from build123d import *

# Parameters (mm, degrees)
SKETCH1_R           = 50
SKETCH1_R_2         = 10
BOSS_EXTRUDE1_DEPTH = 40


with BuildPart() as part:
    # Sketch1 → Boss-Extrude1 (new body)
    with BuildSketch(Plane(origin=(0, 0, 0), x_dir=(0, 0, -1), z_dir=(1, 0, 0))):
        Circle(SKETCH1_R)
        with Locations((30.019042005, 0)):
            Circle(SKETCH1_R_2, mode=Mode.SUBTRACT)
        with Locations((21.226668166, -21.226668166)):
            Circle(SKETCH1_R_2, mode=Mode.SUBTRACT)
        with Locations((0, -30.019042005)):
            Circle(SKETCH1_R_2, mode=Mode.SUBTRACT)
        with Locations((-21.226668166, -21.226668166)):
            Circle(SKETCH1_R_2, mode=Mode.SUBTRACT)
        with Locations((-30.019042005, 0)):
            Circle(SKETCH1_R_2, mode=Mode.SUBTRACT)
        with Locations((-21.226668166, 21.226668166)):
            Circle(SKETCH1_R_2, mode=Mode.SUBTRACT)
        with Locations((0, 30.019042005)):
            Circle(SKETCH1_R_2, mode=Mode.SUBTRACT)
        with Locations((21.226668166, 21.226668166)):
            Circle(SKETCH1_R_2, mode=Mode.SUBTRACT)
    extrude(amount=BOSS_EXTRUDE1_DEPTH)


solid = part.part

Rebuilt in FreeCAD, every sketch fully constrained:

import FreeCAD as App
import Part
import Sketcher
Q = App.Units.Quantity

doc = App.newDocument("Part")
body = doc.addObject("PartDesign::Body", "Body")

# Sketch on YZ plane
sketch1 = body.newObject("Sketcher::SketchObject", "Sketch")
sketch1.AttachmentSupport = (doc.getObject("YZ_Plane"), [""])
sketch1.MapMode = "FlatFace"
sketch1.addGeometry(Part.Circle(App.Vector(0, 0, 0), App.Vector(0, 0, 1), 50), False)
sketch1.addGeometry(Part.Circle(App.Vector(-21.226668, 21.226668, 0), App.Vector(0, 0, 1), 10), False)
sketch1.addGeometry(Part.Circle(App.Vector(-30.019042, 0, 0), App.Vector(0, 0, 1), 10), False)
sketch1.addGeometry(Part.Circle(App.Vector(-21.226668, -21.226668, 0), App.Vector(0, 0, 1), 10), False)
sketch1.addGeometry(Part.Circle(App.Vector(0, 30.019042, 0), App.Vector(0, 0, 1), 10), False)
sketch1.addGeometry(Part.Circle(App.Vector(21.226668, 21.226668, 0), App.Vector(0, 0, 1), 10), False)
sketch1.addGeometry(Part.Circle(App.Vector(0, -30.019042, 0), App.Vector(0, 0, 1), 10), False)
sketch1.addGeometry(Part.Circle(App.Vector(30.019042, 0, 0), App.Vector(0, 0, 1), 10), False)
sketch1.addGeometry(Part.Circle(App.Vector(21.226668, -21.226668, 0), App.Vector(0, 0, 1), 10), False)
sketch1.addConstraint(Sketcher.Constraint("Coincident", 0, 3, -1, 1))
sketch1.addConstraint(Sketcher.Constraint("Equal", 1, 2))
sketch1.addConstraint(Sketcher.Constraint("Equal", 2, 3))
sketch1.addConstraint(Sketcher.Constraint("Equal", 3, 4))
sketch1.addConstraint(Sketcher.Constraint("Equal", 4, 5))
sketch1.addConstraint(Sketcher.Constraint("Equal", 5, 6))
sketch1.addConstraint(Sketcher.Constraint("Equal", 6, 7))
sketch1.addConstraint(Sketcher.Constraint("Equal", 7, 8))
sketch1.addConstraint(Sketcher.Constraint("Symmetric", 3, 3, 5, 3, -1, 1))
sketch1.addConstraint(Sketcher.Constraint("Symmetric", 4, 3, 6, 3, -1, 1))
sketch1.addConstraint(Sketcher.Constraint("Symmetric", 2, 3, 7, 3, -1, 1))
sketch1.addConstraint(Sketcher.Constraint("Symmetric", 1, 3, 8, 3, -1, 1))
sketch1.addConstraint(Sketcher.Constraint("Symmetric", 1, 3, 5, 3, -2))
sketch1.addConstraint(Sketcher.Constraint("PointOnObject", 2, 3, -1))
sketch1.addConstraint(Sketcher.Constraint("PointOnObject", 4, 3, -2))
sketch1.addConstraint(Sketcher.Constraint("Diameter", 0, Q("100 mm")))
sketch1.addConstraint(Sketcher.Constraint("Diameter", 1, Q("20 mm")))
sketch1.addConstraint(Sketcher.Constraint("DistanceX", 1, 3, -1, 1, Q("21.226668 mm")))
sketch1.addConstraint(Sketcher.Constraint("DistanceY", -1, 1, 1, 3, Q("21.226668 mm")))
sketch1.addConstraint(Sketcher.Constraint("DistanceY", 3, 3, 4, 3, Q("51.24571 mm")))
sketch1.addConstraint(Sketcher.Constraint("DistanceX", 2, 3, 5, 3, Q("51.24571 mm")))
pad1 = body.newObject("PartDesign::Pad", "Pad")
pad1.Profile = sketch1
pad1.Length = 40

doc.recompute()
